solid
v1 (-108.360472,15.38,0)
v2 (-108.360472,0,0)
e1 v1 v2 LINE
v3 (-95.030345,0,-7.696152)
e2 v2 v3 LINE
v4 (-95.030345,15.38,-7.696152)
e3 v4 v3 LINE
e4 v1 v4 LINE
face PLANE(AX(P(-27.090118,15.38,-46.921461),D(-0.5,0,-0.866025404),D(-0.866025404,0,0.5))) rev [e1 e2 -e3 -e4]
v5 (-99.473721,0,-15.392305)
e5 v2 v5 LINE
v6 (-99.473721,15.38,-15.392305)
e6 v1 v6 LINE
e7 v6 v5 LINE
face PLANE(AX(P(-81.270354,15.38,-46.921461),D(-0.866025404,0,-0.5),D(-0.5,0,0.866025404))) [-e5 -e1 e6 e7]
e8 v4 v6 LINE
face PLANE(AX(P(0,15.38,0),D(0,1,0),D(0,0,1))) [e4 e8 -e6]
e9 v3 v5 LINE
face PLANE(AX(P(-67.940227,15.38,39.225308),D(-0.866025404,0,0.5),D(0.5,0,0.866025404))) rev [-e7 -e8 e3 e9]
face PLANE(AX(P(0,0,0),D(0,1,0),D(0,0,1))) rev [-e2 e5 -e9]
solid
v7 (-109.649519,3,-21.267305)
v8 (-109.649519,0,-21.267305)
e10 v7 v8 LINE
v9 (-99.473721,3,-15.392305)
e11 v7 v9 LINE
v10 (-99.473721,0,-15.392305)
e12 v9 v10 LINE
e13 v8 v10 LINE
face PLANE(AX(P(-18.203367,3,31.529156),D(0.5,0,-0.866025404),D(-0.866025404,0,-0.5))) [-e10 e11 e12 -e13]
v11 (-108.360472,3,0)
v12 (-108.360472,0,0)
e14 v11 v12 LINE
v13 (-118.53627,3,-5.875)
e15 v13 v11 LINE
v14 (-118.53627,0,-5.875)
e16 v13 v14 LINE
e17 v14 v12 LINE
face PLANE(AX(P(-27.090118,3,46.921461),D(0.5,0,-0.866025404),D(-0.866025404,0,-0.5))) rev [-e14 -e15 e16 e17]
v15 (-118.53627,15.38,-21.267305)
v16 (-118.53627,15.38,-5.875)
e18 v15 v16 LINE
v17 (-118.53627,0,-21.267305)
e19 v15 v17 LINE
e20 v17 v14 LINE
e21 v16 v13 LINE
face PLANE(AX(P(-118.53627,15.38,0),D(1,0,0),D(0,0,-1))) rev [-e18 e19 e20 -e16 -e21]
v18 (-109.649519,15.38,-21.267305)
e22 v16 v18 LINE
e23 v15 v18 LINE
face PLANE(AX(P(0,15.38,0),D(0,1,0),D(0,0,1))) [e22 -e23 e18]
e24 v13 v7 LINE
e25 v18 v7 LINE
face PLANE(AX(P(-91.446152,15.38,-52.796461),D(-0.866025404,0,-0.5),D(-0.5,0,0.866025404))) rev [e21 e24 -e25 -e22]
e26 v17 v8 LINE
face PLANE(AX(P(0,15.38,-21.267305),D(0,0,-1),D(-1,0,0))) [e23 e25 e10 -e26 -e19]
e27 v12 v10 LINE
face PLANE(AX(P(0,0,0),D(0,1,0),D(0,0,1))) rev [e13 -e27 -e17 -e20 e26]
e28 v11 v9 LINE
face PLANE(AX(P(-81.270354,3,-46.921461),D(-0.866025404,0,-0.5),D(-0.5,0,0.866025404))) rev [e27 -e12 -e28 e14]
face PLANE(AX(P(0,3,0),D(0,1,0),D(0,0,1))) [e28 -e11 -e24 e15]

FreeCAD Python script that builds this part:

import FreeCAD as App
import Part
import Sketcher
from FreeCAD import Vector
Q = App.Units.Quantity

doc = App.newDocument("Part")
body = doc.addObject("PartDesign::Body", "Body")

sketch1 = doc.addObject("Sketcher::SketchObject", "Sketch")
body.addObject(sketch1)
sketch1.AttachmentSupport = (doc.XZ_Plane, [""])
sketch1.MapMode = "FlatFace"
sketch1.addGeometry(Part.LineSegment(Vector(-118.53627, -5.875, 0), Vector(-109.649519, -21.267305, 0)), False)
sketch1.addGeometry(Part.LineSegment(Vector(-109.649519, -21.267305, 0), Vector(-118.53627, -21.267305, 0)), False)
sketch1.addGeometry(Part.LineSegment(Vector(-118.53627, -21.267305, 0), Vector(-118.53627, -5.875, 0)), False)
sketch1.addConstraint(Sketcher.Constraint("Coincident", 0, 2, 1, 1))
sketch1.addConstraint(Sketcher.Constraint("Coincident", 1, 2, 2, 1))
sketch1.addConstraint(Sketcher.Constraint("Coincident", 2, 2, 0, 1))
sketch1.addConstraint(Sketcher.Constraint("Horizontal", 1))
sketch1.addConstraint(Sketcher.Constraint("Vertical", 2))
sketch1.addConstraint(Sketcher.Constraint("Angle", 0, Q("-60 deg")))
sketch1.addConstraint(Sketcher.Constraint("DistanceY", 2, 2, -1, 1, 5.875))
sketch1.addConstraint(Sketcher.Constraint("DistanceX", 1, 2, 1, 1, 8.886751))
sketch1.addConstraint(Sketcher.Constraint("DistanceX", 0, 2, -1, 1, 109.649519))
pad1 = doc.addObject("PartDesign::Pad", "Pad")
body.addObject(pad1)
pad1.Profile = sketch1
pad1.Length = 15.38
pad1.Reversed = True

sketch2 = doc.addObject("Sketcher::SketchObject", "Sketch001")
body.addObject(sketch2)
sketch2.AttachmentSupport = (doc.XZ_Plane, [""])
sketch2.MapMode = "FlatFace"
sketch2.addGeometry(Part.LineSegment(Vector(-99.473721, -15.392305, 0), Vector(-109.649519, -21.267305, 0)), False)
sketch2.addGeometry(Part.LineSegment(Vector(-109.649519, -21.267305, 0), Vector(-118.53627, -5.875, 0)), False)
sketch2.addGeometry(Part.LineSegment(Vector(-118.53627, -5.875, 0), Vector(-108.360472, 0, 0)), False)
sketch2.addGeometry(Part.LineSegment(Vector(-108.360472, 0, 0), Vector(-99.473721, -15.392305, 0)), False)
sketch2.addConstraint(Sketcher.Constraint("Coincident", 0, 2, 1, 1))
sketch2.addConstraint(Sketcher.Constraint("Coincident", 1, 2, 2, 1))
sketch2.addConstraint(Sketcher.Constraint("Coincident", 2, 2, 3, 1))
sketch2.addConstraint(Sketcher.Constraint("Coincident", 3, 2, 0, 1))
sketch2.addConstraint(Sketcher.Constraint("PointOnObject", 2, 2, -1))
sketch2.addConstraint(Sketcher.Constraint("Perpendicular", 0, 1))
sketch2.addConstraint(Sketcher.Constraint("Perpendicular", 1, 2))
sketch2.addConstraint(Sketcher.Constraint("Perpendicular", 2, 3))
sketch2.addConstraint(Sketcher.Constraint("Angle", 0, Q("-150 deg")))
sketch2.addConstraint(Sketcher.Constraint("Distance", 0, 11.75))
sketch2.addConstraint(Sketcher.Constraint("DistanceX", 0, 2, -1, 1, 109.649519))
sketch2.addConstraint(Sketcher.Constraint("DistanceX", 1, 2, -1, 1, 118.53627))
pad2 = doc.addObject("PartDesign::Pad", "Pad001")
body.addObject(pad2)
pad2.Profile = sketch2
pad2.Length = 3
pad2.Reversed = True
body2 = doc.addObject("PartDesign::Body", "Body001")

sketch3 = doc.addObject("Sketcher::SketchObject", "Sketch002")
body2.addObject(sketch3)
sketch3.AttachmentSupport = (doc.getObject("XZ_Plane001"), [""])
sketch3.MapMode = "FlatFace"
sketch3.addGeometry(Part.LineSegment(Vector(-108.360472, 0, 0), Vector(-95.030345, -7.696152, 0)), False)
sketch3.addGeometry(Part.LineSegment(Vector(-95.030345, -7.696152, 0), Vector(-99.473721, -15.392305, 0)), False)
sketch3.addGeometry(Part.LineSegment(Vector(-99.473721, -15.392305, 0), Vector(-108.360472, 0, 0)), False)
sketch3.addConstraint(Sketcher.Constraint("Coincident", 0, 2, 1, 1))
sketch3.addConstraint(Sketcher.Constraint("Coincident", 1, 2, 2, 1))
sketch3.addConstraint(Sketcher.Constraint("Coincident", 2, 2, 0, 1))
sketch3.addConstraint(Sketcher.Constraint("PointOnObject", 2, 2, -1))
sketch3.addConstraint(Sketcher.Constraint("Perpendicular", 0, 1))
sketch3.addConstraint(Sketcher.Constraint("Angle", 0, Q("-30 deg")))
sketch3.addConstraint(Sketcher.Constraint("Angle", 2, Q("120 deg")))
sketch3.addConstraint(Sketcher.Constraint("Distance", 1, 8.886751))
sketch3.addConstraint(Sketcher.Constraint("DistanceX", 1, 2, -1, 1, 99.473721))
pad3 = doc.addObject("PartDesign::Pad", "Pad002")
body2.addObject(pad3)
pad3.Profile = sketch3
pad3.Length = 15.38
pad3.Reversed = True

doc.recompute()
